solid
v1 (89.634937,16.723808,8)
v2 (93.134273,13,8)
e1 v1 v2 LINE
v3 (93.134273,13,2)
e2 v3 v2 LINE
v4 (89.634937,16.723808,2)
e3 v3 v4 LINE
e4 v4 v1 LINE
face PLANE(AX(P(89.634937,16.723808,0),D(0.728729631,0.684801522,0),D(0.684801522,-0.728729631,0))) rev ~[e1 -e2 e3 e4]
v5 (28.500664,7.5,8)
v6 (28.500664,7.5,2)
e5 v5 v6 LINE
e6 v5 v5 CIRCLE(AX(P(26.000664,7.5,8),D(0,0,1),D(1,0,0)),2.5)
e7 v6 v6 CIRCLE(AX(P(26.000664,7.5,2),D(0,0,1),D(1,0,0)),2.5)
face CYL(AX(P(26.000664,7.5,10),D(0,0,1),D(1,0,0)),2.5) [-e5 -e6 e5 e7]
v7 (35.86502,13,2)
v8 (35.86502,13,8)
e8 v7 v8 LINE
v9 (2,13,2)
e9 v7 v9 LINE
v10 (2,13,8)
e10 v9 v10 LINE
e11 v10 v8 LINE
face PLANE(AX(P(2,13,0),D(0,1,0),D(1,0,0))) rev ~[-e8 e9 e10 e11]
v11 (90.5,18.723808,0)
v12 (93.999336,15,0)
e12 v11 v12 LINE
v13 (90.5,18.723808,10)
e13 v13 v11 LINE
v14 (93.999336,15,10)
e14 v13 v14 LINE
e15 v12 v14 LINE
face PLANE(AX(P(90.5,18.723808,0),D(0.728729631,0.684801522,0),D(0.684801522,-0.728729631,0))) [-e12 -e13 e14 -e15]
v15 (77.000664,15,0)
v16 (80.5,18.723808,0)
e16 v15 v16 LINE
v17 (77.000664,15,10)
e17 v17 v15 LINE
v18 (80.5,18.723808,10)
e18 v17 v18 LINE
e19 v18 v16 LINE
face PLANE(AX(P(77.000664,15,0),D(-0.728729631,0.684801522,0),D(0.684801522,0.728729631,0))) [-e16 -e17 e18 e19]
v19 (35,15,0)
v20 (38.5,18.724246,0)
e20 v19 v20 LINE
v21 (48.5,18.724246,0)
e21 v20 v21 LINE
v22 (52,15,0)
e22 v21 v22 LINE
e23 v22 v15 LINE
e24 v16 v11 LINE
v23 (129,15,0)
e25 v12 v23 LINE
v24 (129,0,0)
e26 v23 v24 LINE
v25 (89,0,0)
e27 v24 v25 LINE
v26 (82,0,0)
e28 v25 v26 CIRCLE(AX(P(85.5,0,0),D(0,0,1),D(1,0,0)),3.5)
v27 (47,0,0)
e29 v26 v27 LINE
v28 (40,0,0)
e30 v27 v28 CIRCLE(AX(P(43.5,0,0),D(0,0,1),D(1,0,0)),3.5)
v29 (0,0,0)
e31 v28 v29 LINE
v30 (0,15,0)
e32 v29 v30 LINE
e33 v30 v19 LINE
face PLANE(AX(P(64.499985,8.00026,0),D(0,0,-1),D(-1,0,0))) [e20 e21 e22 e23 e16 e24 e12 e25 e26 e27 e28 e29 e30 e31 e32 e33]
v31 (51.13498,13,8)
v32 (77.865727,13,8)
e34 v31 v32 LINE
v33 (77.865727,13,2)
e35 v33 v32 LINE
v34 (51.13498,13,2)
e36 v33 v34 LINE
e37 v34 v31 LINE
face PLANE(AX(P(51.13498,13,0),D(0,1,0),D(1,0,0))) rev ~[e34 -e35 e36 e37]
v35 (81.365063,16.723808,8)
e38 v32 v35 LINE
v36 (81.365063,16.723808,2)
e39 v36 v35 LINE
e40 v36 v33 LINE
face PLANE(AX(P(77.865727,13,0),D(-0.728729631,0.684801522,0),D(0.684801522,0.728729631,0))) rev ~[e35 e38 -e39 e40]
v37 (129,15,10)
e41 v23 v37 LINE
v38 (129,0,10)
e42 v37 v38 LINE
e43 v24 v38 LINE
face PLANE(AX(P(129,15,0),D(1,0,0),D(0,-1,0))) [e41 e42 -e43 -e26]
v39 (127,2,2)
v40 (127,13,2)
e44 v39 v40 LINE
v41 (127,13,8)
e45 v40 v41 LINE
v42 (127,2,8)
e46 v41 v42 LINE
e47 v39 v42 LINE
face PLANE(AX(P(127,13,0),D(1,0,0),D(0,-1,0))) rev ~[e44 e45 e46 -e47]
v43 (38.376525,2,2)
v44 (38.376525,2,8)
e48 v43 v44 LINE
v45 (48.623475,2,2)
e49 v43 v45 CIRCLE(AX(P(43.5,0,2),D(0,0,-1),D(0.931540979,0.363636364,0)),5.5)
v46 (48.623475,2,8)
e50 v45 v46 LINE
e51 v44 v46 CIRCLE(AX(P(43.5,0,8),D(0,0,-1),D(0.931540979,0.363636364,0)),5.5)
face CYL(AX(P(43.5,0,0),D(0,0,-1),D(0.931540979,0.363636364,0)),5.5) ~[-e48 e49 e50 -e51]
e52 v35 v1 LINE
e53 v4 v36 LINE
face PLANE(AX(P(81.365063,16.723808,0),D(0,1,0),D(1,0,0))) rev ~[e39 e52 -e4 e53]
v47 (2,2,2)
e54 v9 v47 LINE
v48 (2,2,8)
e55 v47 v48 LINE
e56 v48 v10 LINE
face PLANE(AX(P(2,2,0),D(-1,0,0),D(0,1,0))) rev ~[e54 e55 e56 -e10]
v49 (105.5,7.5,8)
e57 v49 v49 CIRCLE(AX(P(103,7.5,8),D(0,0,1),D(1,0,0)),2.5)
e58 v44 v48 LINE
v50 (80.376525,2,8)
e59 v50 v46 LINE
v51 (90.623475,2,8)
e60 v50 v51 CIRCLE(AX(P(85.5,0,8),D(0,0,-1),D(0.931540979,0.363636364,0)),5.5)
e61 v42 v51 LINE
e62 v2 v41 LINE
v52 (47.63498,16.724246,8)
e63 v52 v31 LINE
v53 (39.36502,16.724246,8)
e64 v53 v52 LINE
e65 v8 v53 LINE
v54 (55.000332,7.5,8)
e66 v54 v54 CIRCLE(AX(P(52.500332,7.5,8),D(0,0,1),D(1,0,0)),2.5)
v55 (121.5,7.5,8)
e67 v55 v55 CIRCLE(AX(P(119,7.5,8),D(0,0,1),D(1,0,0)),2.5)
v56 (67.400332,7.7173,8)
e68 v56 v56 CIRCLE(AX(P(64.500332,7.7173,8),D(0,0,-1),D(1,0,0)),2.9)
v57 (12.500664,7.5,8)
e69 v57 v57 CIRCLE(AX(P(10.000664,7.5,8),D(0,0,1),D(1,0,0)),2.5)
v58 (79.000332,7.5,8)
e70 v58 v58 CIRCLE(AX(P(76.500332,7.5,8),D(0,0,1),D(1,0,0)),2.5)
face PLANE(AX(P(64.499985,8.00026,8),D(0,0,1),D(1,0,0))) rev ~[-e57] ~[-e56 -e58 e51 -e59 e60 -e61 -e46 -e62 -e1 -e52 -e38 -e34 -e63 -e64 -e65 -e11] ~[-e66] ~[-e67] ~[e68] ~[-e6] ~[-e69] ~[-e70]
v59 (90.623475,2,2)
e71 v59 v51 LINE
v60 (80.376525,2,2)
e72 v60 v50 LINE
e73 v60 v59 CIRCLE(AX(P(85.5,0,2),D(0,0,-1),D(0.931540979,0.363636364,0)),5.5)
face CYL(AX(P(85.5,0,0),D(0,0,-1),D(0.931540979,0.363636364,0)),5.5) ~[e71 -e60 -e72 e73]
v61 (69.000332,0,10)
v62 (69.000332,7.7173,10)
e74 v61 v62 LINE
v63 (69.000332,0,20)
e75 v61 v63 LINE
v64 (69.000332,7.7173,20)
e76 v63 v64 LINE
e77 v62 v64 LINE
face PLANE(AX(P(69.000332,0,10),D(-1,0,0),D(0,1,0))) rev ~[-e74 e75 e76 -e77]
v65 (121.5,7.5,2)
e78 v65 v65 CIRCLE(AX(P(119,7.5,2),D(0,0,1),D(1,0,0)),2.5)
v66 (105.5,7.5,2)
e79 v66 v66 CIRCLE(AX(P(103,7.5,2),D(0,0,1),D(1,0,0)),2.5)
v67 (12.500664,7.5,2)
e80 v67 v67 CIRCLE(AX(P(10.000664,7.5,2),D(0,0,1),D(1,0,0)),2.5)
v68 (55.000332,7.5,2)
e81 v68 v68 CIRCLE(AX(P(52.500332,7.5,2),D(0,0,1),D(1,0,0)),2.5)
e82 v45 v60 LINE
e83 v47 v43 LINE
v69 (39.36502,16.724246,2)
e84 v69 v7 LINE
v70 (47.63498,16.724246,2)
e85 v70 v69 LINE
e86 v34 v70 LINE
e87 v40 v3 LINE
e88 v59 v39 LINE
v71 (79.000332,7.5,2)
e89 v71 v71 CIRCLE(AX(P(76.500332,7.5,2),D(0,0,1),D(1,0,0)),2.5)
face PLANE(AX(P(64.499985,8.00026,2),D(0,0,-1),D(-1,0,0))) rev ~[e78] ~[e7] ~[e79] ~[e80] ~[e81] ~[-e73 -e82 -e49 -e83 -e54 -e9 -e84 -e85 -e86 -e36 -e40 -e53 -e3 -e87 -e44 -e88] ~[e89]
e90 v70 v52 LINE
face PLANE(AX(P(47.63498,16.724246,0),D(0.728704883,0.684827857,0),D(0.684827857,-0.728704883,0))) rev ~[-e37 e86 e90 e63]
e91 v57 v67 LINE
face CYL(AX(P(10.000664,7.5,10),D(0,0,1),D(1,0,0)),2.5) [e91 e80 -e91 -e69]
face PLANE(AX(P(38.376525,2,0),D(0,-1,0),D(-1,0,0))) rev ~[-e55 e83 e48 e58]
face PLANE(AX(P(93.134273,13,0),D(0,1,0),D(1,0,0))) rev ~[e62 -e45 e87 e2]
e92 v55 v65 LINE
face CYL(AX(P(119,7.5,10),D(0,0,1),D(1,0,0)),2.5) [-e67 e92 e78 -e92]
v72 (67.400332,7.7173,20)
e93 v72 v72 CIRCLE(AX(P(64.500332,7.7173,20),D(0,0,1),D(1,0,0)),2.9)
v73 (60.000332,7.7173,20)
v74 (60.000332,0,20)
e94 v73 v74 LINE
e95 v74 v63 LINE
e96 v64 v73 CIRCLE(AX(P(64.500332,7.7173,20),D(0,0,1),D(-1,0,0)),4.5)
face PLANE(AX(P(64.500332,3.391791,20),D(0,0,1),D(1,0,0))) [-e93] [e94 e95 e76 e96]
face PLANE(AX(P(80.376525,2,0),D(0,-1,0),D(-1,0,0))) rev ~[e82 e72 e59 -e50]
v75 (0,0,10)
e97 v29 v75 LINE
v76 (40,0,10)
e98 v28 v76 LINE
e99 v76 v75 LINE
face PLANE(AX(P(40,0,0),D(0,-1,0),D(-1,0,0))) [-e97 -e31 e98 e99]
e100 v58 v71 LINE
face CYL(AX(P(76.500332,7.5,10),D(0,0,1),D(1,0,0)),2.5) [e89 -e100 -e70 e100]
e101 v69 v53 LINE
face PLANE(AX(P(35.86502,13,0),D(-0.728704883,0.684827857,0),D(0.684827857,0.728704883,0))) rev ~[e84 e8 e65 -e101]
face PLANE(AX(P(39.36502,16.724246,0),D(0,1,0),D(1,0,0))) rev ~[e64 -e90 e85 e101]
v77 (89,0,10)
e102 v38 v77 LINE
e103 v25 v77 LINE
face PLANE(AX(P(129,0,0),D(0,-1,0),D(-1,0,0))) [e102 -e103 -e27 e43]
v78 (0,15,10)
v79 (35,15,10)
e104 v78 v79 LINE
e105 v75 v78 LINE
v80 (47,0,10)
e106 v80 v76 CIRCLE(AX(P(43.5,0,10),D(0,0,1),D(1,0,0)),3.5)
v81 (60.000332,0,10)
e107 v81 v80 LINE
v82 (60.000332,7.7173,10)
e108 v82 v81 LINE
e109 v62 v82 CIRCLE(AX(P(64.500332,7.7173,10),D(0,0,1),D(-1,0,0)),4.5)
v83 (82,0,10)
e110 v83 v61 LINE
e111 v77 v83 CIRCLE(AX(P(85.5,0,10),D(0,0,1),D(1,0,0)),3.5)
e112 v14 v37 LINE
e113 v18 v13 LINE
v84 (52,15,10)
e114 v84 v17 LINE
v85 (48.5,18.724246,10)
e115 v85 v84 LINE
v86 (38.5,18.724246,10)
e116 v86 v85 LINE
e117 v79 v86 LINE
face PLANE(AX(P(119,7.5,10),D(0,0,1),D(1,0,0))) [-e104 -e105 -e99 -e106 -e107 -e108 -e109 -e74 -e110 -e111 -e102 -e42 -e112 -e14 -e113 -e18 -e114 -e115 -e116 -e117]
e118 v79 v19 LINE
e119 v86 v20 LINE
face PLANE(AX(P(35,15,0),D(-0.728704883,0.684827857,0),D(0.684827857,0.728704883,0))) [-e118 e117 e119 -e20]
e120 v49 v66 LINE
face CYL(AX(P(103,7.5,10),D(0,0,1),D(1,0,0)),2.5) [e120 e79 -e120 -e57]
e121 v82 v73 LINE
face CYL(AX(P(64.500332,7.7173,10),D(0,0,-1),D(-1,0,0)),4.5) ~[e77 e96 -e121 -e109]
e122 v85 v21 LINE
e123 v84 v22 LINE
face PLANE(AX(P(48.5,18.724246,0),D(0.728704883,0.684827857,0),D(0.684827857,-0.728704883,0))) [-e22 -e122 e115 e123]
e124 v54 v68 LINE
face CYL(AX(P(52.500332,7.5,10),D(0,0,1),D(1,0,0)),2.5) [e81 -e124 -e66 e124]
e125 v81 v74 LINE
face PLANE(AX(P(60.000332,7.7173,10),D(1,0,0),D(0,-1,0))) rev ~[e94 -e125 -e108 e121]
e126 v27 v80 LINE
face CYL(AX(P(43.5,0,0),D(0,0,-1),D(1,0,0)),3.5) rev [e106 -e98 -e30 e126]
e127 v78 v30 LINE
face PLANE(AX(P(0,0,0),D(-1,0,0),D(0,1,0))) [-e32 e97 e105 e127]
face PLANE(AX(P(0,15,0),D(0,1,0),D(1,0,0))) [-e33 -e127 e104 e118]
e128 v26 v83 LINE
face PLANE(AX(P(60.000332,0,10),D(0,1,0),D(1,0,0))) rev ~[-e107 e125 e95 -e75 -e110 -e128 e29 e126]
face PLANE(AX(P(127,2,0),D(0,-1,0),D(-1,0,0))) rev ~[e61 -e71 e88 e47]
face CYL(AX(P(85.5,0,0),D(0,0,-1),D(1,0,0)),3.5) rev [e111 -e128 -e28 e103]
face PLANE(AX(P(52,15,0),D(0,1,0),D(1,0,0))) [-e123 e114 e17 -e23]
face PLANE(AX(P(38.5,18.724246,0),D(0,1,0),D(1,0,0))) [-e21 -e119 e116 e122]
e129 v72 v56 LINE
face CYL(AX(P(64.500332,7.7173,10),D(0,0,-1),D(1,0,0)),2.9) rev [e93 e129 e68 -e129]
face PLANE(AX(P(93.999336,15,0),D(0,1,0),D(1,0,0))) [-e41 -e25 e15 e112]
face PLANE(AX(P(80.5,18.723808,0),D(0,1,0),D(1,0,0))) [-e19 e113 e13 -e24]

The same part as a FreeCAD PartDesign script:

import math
import FreeCAD as App
import Part
import Sketcher

V = App.Vector
Q = App.Units.Quantity

doc = App.newDocument("Part")
params = doc.addObject("Spreadsheet::Sheet", "Params")
for row, (alias, value) in enumerate([
    ("sketch1_radius", "3.5 mm"),
    ("sketch1_radius2", "5.5 mm"),
    ("sketch1_width", "40 mm"),
    ("sketch1_width2", "35 mm"),
    ("sketch1_width3", "10 mm"),
    ("pad1_length", "10 mm"),
    ("sketch2_radius", "3.5 mm"),
    ("sketch2_width", "10 mm"),
    ("sketch2_width2", "35 mm"),
    ("sketch2_width3", "40 mm"),
    ("sketch2_height", "15 mm"),
    ("pad2_length", "2 mm"),
    ("sketch3_radius", "3.5 mm"),
    ("sketch3_width", "10 mm"),
    ("sketch3_width2", "40 mm"),
    ("sketch3_width3", "35 mm"),
    ("sketch3_height", "15 mm"),
    ("pad3_length", "2 mm"),
    ("sketch4_diameter", "9 mm"),
    ("sketch4_diameter2", "5.8 mm"),
    ("pad4_length", "10 mm"),
    ("sketch5_diameter", "5.8 mm"),
    ("pocket1_length", "8 mm"),
    ("sketch6_diameter", "5 mm"),
    ("pad5_length", "10 mm"),
    ("sketch7_radius", "4.5 mm"),
    ("pad6_length", "10 mm"),
], start=1):
    params.set(f"A{row}", alias)
    params.set(f"B{row}", "=" + value)
    params.setAlias(f"B{row}", alias)

body = doc.addObject("PartDesign::Body", "Body")

# Sketch on XY plane
sketch1 = body.newObject("Sketcher::SketchObject", "Sketch")
sketch1.AttachmentSupport = (doc.getObject("XY_Plane"), [""])
sketch1.MapMode = "FlatFace"
sketch1.addGeometry([
    Part.LineSegment(V(0, 15, 0), V(0, 0, 0)),  # 0
    Part.LineSegment(V(0, 0, 0), V(40, 0, 0)),  # 1
    Part.ArcOfCircle(Part.Circle(V(43.5, 0, 0), V(0, 0, 1), 3.5), math.radians(0), math.radians(180)),  # 2
    Part.LineSegment(V(47, 0, 0), V(82, 0, 0)),  # 3
    Part.ArcOfCircle(Part.Circle(V(85.5, 0, 0), V(0, 0, 1), 3.5), math.radians(0), math.radians(180)),  # 4
    Part.LineSegment(V(89, 0, 0), V(129, 0, 0)),  # 5
    Part.LineSegment(V(129, 0, 0), V(129, 15, 0)),  # 6
    Part.LineSegment(V(129, 15, 0), V(94, 15, 0)),  # 7
    Part.LineSegment(V(94, 15, 0), V(90.5, 18.7, 0)),  # 8
    Part.LineSegment(V(90.5, 18.7, 0), V(80.5, 18.7, 0)),  # 9
    Part.LineSegment(V(80.5, 18.7, 0), V(77, 15, 0)),  # 10
    Part.LineSegment(V(77, 15, 0), V(52, 15, 0)),  # 11
    Part.LineSegment(V(52, 15, 0), V(48.5, 18.7, 0)),  # 12
    Part.LineSegment(V(48.5, 18.7, 0), V(38.5, 18.7, 0)),  # 13
    Part.LineSegment(V(38.5, 18.7, 0), V(35, 15, 0)),  # 14
    Part.LineSegment(V(35, 15, 0), V(0, 15, 0)),  # 15
    Part.LineSegment(V(2, 13, 0), V(35.9, 13, 0)),  # 16
    Part.LineSegment(V(35.9, 13, 0), V(39.4, 16.7, 0)),  # 17
    Part.LineSegment(V(39.4, 16.7, 0), V(47.6, 16.7, 0)),  # 18
    Part.LineSegment(V(47.6, 16.7, 0), V(51.1, 13, 0)),  # 19
    Part.LineSegment(V(51.1, 13, 0), V(77.9, 13, 0)),  # 20
    Part.LineSegment(V(77.9, 13, 0), V(81.4, 16.7, 0)),  # 21
    Part.LineSegment(V(81.4, 16.7, 0), V(89.6, 16.7, 0)),  # 22
    Part.LineSegment(V(89.6, 16.7, 0), V(93.1, 13, 0)),  # 23
    Part.LineSegment(V(93.1, 13, 0), V(127, 13, 0)),  # 24
    Part.LineSegment(V(127, 13, 0), V(127, 2, 0)),  # 25
    Part.LineSegment(V(127, 2, 0), V(90.6, 2, 0)),  # 26
    Part.ArcOfCircle(Part.Circle(V(85.5, 0, 0), V(0, 0, 1), 5.5), math.radians(21), math.radians(159)),  # 27
    Part.LineSegment(V(80.4, 2, 0), V(48.6, 2, 0)),  # 28
    Part.ArcOfCircle(Part.Circle(V(43.5, 0, 0), V(0, 0, 1), 5.5), math.radians(21), math.radians(159)),  # 29
    Part.LineSegment(V(38.4, 2, 0), V(2, 2, 0)),  # 30
    Part.LineSegment(V(2, 2, 0), V(2, 13, 0)),  # 31
], False)
sketch1.addConstraint([
    Sketcher.Constraint("Coincident", 0, 2, 1, 1),
    Sketcher.Constraint("Coincident", 1, 2, 2, 2),
    Sketcher.Constraint("Coincident", 2, 1, 3, 1),
    Sketcher.Constraint("Coincident", 3, 2, 4, 2),
    Sketcher.Constraint("Coincident", 4, 1, 5, 1),
    Sketcher.Constraint("Coincident", 5, 2, 6, 1),
    Sketcher.Constraint("Coincident", 6, 2, 7, 1),
    Sketcher.Constraint("Coincident", 7, 2, 8, 1),
    Sketcher.Constraint("Coincident", 8, 2, 9, 1),
    Sketcher.Constraint("Coincident", 9, 2, 10, 1),
    Sketcher.Constraint("Coincident", 10, 2, 11, 1),
    Sketcher.Constraint("Coincident", 11, 2, 12, 1),
    Sketcher.Constraint("Coincident", 12, 2, 13, 1),
    Sketcher.Constraint("Coincident", 13, 2, 14, 1),
    Sketcher.Constraint("Coincident", 14, 2, 15, 1),
    Sketcher.Constraint("Coincident", 15, 2, 0, 1),
    Sketcher.Constraint("Coincident", 16, 2, 17, 1),
    Sketcher.Constraint("Coincident", 17, 2, 18, 1),
    Sketcher.Constraint("Coincident", 18, 2, 19, 1),
    Sketcher.Constraint("Coincident", 19, 2, 20, 1),
    Sketcher.Constraint("Coincident", 20, 2, 21, 1),
    Sketcher.Constraint("Coincident", 21, 2, 22, 1),
    Sketcher.Constraint("Coincident", 22, 2, 23, 1),
    Sketcher.Constraint("Coincident", 23, 2, 24, 1),
    Sketcher.Constraint("Coincident", 24, 2, 25, 1),
    Sketcher.Constraint("Coincident", 25, 2, 26, 1),
    Sketcher.Constraint("Coincident", 26, 2, 27, 1),
    Sketcher.Constraint("Coincident", 27, 2, 28, 1),
    Sketcher.Constraint("Coincident", 28, 2, 29, 1),
    Sketcher.Constraint("Coincident", 29, 2, 30, 1),
    Sketcher.Constraint("Coincident", 30, 2, 31, 1),
    Sketcher.Constraint("Coincident", 31, 2, 16, 1),
    Sketcher.Constraint("Vertical", 0),
    Sketcher.Constraint("Horizontal", 1),
    Sketcher.Constraint("Horizontal", 3),
    Sketcher.Constraint("Horizontal", 5),
    Sketcher.Constraint("Vertical", 6),
    Sketcher.Constraint("Horizontal", 7),
    Sketcher.Constraint("Horizontal", 9),
    Sketcher.Constraint("Horizontal", 11),
    Sketcher.Constraint("Horizontal", 13),
    Sketcher.Constraint("Horizontal", 15),
    Sketcher.Constraint("Horizontal", 16),
    Sketcher.Constraint("Horizontal", 18),
    Sketcher.Constraint("Horizontal", 20),
    Sketcher.Constraint("Horizontal", 22),
    Sketcher.Constraint("Horizontal", 24),
    Sketcher.Constraint("Vertical", 25),
    Sketcher.Constraint("Horizontal", 26),
    Sketcher.Constraint("Horizontal", 28),
    Sketcher.Constraint("Horizontal", 30),
    Sketcher.Constraint("Vertical", 31),
    Sketcher.Constraint("Coincident", 0, 2, -1, 1),
    Sketcher.Constraint("Coincident", 27, 3, 4, 3),
    Sketcher.Constraint("Coincident", 29, 3, 2, 3),
    Sketcher.Constraint("Equal", 2, 4),
    Sketcher.Constraint("Equal", 27, 29),
    Sketcher.Constraint("PointOnObject", 2, 3, -1),
    Sketcher.Constraint("PointOnObject", 4, 3, -1),
    Sketcher.Constraint("PointOnObject", 2, 1, -1),
    Sketcher.Constraint("PointOnObject", 4, 1, -1),
    Sketcher.Constraint("Parallel", 14, 17),
    Sketcher.Constraint("Parallel", 12, 19),
    Sketcher.Constraint("Parallel", 10, 21),
    Sketcher.Constraint("Parallel", 8, 23),
    Sketcher.Constraint("Horizontal", 7, 2, 10, 2),
    Sketcher.Constraint("Horizontal", 11, 2, 14, 2),
    Sketcher.Constraint("Horizontal", 16, 2, 19, 2),
    Sketcher.Constraint("Horizontal", 20, 2, 23, 2),
    Sketcher.Constraint("Horizontal", 26, 2, 27, 2),
    Sketcher.Constraint("Horizontal", 28, 2, 29, 2),
    Sketcher.Constraint("Equal", 1, 5),
    Sketcher.Constraint("Equal", 9, 13),
    Sketcher.Constraint("Equal", 3, 15),
    Sketcher.Constraint("Equal", 26, 30),
    Sketcher.Constraint("Equal", 8, 10),
    Sketcher.Constraint("Equal", 12, 14),
    Sketcher.Constraint("Equal", 14, 17),
    Sketcher.Constraint("Equal", 10, 21),
    Sketcher.Constraint("Radius", 2, 3.5),
    Sketcher.Constraint("Radius", 27, 5.5),
    Sketcher.Constraint("DistanceX", 1, 1, 1, 2, 40.0),
    Sketcher.Constraint("DistanceX", 3, 1, 3, 2, 35.0),
    Sketcher.Constraint("DistanceX", 9, 2, 9, 1, 10.0),
    Sketcher.Constraint("DistanceY", 0, 2, 0, 1, 15.0),
    Sketcher.Constraint("DistanceY", 25, 2, 25, 1, 11.0),
    Sketcher.Constraint("DistanceX", -1, 1, 11, 2, 52.0),
    Sketcher.Constraint("DistanceY", -1, 1, 16, 2, 13.0),
    Sketcher.Constraint("DistanceX", -1, 1, 24, 2, 127.0),
    Sketcher.Constraint("DistanceX", 4, 3, 8, 2, 5.0),
    Sketcher.Constraint("Angle", 8, Q("133.22 deg")),
    Sketcher.Constraint("Distance", 8, 5.11),
    Sketcher.Constraint("DistanceX", 16, 1, 16, 2, 33.86502),
    Sketcher.Constraint("DistanceX", 18, 1, 18, 2, 8.26996),
    Sketcher.Constraint("DistanceX", 10, 2, 21, 2, 4.364399),
    Sketcher.Constraint("DistanceX", 22, 2, 7, 2, 4.364399),
    Sketcher.Constraint("Distance", 12, 5.110773),
])
sketch1.setExpression("Constraints[79]", "Params.sketch1_radius")
sketch1.setExpression("Constraints[80]", "Params.sketch1_radius2")
sketch1.setExpression("Constraints[81]", "Params.sketch1_width")
sketch1.setExpression("Constraints[82]", "Params.sketch1_width2")
sketch1.setExpression("Constraints[83]", "Params.sketch1_width3")
pad1 = body.newObject("PartDesign::Pad", "Pad")
pad1.Profile = sketch1
pad1.setExpression("Length", "Params.pad1_length")

# Sketch on XY plane
sketch2 = body.newObject("Sketcher::SketchObject", "Sketch001")
sketch2.AttachmentSupport = (doc.getObject("XY_Plane"), [""])
sketch2.MapMode = "FlatFace"
sketch2.AttachmentOffset = App.Placement(V(0, 0, 8), App.Rotation())
sketch2.addGeometry([
    Part.LineSegment(V(129, 0, 0), V(129, 15, 0)),  # 0
    Part.LineSegment(V(129, 15, 0), V(94, 15, 0)),  # 1
    Part.LineSegment(V(94, 15, 0), V(90.5, 18.7, 0)),  # 2
    Part.LineSegment(V(90.5, 18.7, 0), V(80.5, 18.7, 0)),  # 3
    Part.LineSegment(V(80.5, 18.7, 0), V(77, 15, 0)),  # 4
    Part.LineSegment(V(77, 15, 0), V(52, 15, 0)),  # 5
    Part.LineSegment(V(52, 15, 0), V(48.5, 18.7, 0)),  # 6
    Part.LineSegment(V(48.5, 18.7, 0), V(38.5, 18.7, 0)),  # 7
    Part.LineSegment(V(38.5, 18.7, 0), V(35, 15, 0)),  # 8
    Part.LineSegment(V(35, 15, 0), V(0, 15, 0)),  # 9
    Part.LineSegment(V(0, 15, 0), V(0, 0, 0)),  # 10
    Part.LineSegment(V(0, 0, 0), V(40, 0, 0)),  # 11
    Part.ArcOfCircle(Part.Circle(V(43.5, 0, 0), V(0, 0, 1), 3.5), math.radians(0), math.radians(180)),  # 12
    Part.LineSegment(V(47, 0, 0), V(82, 0, 0)),  # 13
    Part.ArcOfCircle(Part.Circle(V(85.5, 0, 0), V(0, 0, 1), 3.5), math.radians(0), math.radians(180)),  # 14
    Part.LineSegment(V(89, 0, 0), V(129, 0, 0)),  # 15
], False)
sketch2.addConstraint([
    Sketcher.Constraint("Coincident", 0, 2, 1, 1),
    Sketcher.Constraint("Coincident", 1, 2, 2, 1),
    Sketcher.Constraint("Coincident", 2, 2, 3, 1),
    Sketcher.Constraint("Coincident", 3, 2, 4, 1),
    Sketcher.Constraint("Coincident", 4, 2, 5, 1),
    Sketcher.Constraint("Coincident", 5, 2, 6, 1),
    Sketcher.Constraint("Coincident", 6, 2, 7, 1),
    Sketcher.Constraint("Coincident", 7, 2, 8, 1),
    Sketcher.Constraint("Coincident", 8, 2, 9, 1),
    Sketcher.Constraint("Coincident", 9, 2, 10, 1),
    Sketcher.Constraint("Coincident", 10, 2, 11, 1),
    Sketcher.Constraint("Coincident", 11, 2, 12, 2),
    Sketcher.Constraint("Coincident", 12, 1, 13, 1),
    Sketcher.Constraint("Coincident", 13, 2, 14, 2),
    Sketcher.Constraint("Coincident", 14, 1, 15, 1),
    Sketcher.Constraint("Coincident", 15, 2, 0, 1),
    Sketcher.Constraint("Vertical", 0),
    Sketcher.Constraint("Horizontal", 1),
    Sketcher.Constraint("Horizontal", 3),
    Sketcher.Constraint("Horizontal", 5),
    Sketcher.Constraint("Horizontal", 7),
    Sketcher.Constraint("Horizontal", 9),
    Sketcher.Constraint("Vertical", 10),
    Sketcher.Constraint("Horizontal", 11),
    Sketcher.Constraint("Horizontal", 13),
    Sketcher.Constraint("Horizontal", 15),
    Sketcher.Constraint("Coincident", 10, 2, -1, 1),
    Sketcher.Constraint("Equal", 12, 14),
    Sketcher.Constraint("PointOnObject", 12, 3, -1),
    Sketcher.Constraint("PointOnObject", 14, 3, -1),
    Sketcher.Constraint("PointOnObject", 12, 1, -1),
    Sketcher.Constraint("PointOnObject", 14, 1, -1),
    Sketcher.Constraint("Horizontal", 1, 2, 4, 2),
    Sketcher.Constraint("Horizontal", 5, 2, 8, 2),
    Sketcher.Constraint("Equal", 3, 7),
    Sketcher.Constraint("Equal", 9, 13),
    Sketcher.Constraint("Equal", 11, 15),
    Sketcher.Constraint("Equal", 2, 4),
    Sketcher.Constraint("Equal", 6, 8),
    Sketcher.Constraint("Radius", 12, 3.5),
    Sketcher.Constraint("DistanceX", 3, 2, 3, 1, 10.0),
    Sketcher.Constraint("DistanceX", 9, 2, 9, 1, 35.0),
    Sketcher.Constraint("DistanceX", 11, 1, 11, 2, 40.0),
    Sketcher.Constraint("DistanceY", 0, 1, 0, 2, 15.0),
    Sketcher.Constraint("DistanceX", -1, 1, 5, 2, 52.0),
    Sketcher.Constraint("DistanceX", 14, 3, 2, 2, 5.0),
    Sketcher.Constraint("Angle", 2, Q("133.22 deg")),
    Sketcher.Constraint("Distance", 2, 5.11),
    Sketcher.Constraint("Distance", 6, 5.110773),
])
sketch2.setExpression("Constraints[39]", "Params.sketch2_radius")
sketch2.setExpression("Constraints[40]", "Params.sketch2_width")
sketch2.setExpression("Constraints[41]", "Params.sketch2_width2")
sketch2.setExpression("Constraints[42]", "Params.sketch2_width3")
sketch2.setExpression("Constraints[43]", "Params.sketch2_height")
pad2 = body.newObject("PartDesign::Pad", "Pad001")
pad2.Profile = sketch2
pad2.setExpression("Length", "Params.pad2_length")

# Sketch on XY plane
sketch3 = body.newObject("Sketcher::SketchObject", "Sketch002")
sketch3.AttachmentSupport = (doc.getObject("XY_Plane"), [""])
sketch3.MapMode = "FlatFace"
sketch3.addGeometry([
    Part.LineSegment(V(52, 15, 0), V(77, 15, 0)),  # 0
    Part.LineSegment(V(77, 15, 0), V(80.5, 18.7, 0)),  # 1
    Part.LineSegment(V(80.5, 18.7, 0), V(90.5, 18.7, 0)),  # 2
    Part.LineSegment(V(90.5, 18.7, 0), V(94, 15, 0)),  # 3
    Part.LineSegment(V(94, 15, 0), V(129, 15, 0)),  # 4
    Part.LineSegment(V(129, 15, 0), V(129, 0, 0)),  # 5
    Part.LineSegment(V(129, 0, 0), V(89, 0, 0)),  # 6
    Part.ArcOfCircle(Part.Circle(V(85.5, 0, 0), V(0, 0, 1), 3.5), math.radians(0), math.radians(180)),  # 7
    Part.LineSegment(V(82, 0, 0), V(47, 0, 0)),  # 8
    Part.ArcOfCircle(Part.Circle(V(43.5, 0, 0), V(0, 0, 1), 3.5), math.radians(0), math.radians(180)),  # 9
    Part.LineSegment(V(40, 0, 0), V(0, 0, 0)),  # 10
    Part.LineSegment(V(0, 0, 0), V(0, 15, 0)),  # 11
    Part.LineSegment(V(0, 15, 0), V(35, 15, 0)),  # 12
    Part.LineSegment(V(35, 15, 0), V(38.5, 18.7, 0)),  # 13
    Part.LineSegment(V(38.5, 18.7, 0), V(48.5, 18.7, 0)),  # 14
    Part.LineSegment(V(48.5, 18.7, 0), V(52, 15, 0)),  # 15
], False)
sketch3.addConstraint([
    Sketcher.Constraint("Coincident", 0, 2, 1, 1),
    Sketcher.Constraint("Coincident", 1, 2, 2, 1),
    Sketcher.Constraint("Coincident", 2, 2, 3, 1),
    Sketcher.Constraint("Coincident", 3, 2, 4, 1),
    Sketcher.Constraint("Coincident", 4, 2, 5, 1),
    Sketcher.Constraint("Coincident", 5, 2, 6, 1),
    Sketcher.Constraint("Coincident", 6, 2, 7, 1),
    Sketcher.Constraint("Coincident", 7, 2, 8, 1),
    Sketcher.Constraint("Coincident", 8, 2, 9, 1),
    Sketcher.Constraint("Coincident", 9, 2, 10, 1),
    Sketcher.Constraint("Coincident", 10, 2, 11, 1),
    Sketcher.Constraint("Coincident", 11, 2, 12, 1),
    Sketcher.Constraint("Coincident", 12, 2, 13, 1),
    Sketcher.Constraint("Coincident", 13, 2, 14, 1),
    Sketcher.Constraint("Coincident", 14, 2, 15, 1),
    Sketcher.Constraint("Coincident", 15, 2, 0, 1),
    Sketcher.Constraint("Horizontal", 0),
    Sketcher.Constraint("Horizontal", 2),
    Sketcher.Constraint("Horizontal", 4),
    Sketcher.Constraint("Vertical", 5),
    Sketcher.Constraint("Horizontal", 6),
    Sketcher.Constraint("Horizontal", 8),
    Sketcher.Constraint("Horizontal", 10),
    Sketcher.Constraint("Vertical", 11),
    Sketcher.Constraint("Horizontal", 12),
    Sketcher.Constraint("Horizontal", 14),
    Sketcher.Constraint("Coincident", 10, 2, -1, 1),
    Sketcher.Constraint("Equal", 7, 9),
    Sketcher.Constraint("PointOnObject", 7, 3, -1),
    Sketcher.Constraint("PointOnObject", 9, 3, -1),
    Sketcher.Constraint("PointOnObject", 5, 2, -1),
    Sketcher.Constraint("PointOnObject", 7, 2, -1),
    Sketcher.Constraint("Horizontal", 0, 2, 3, 2),
    Sketcher.Constraint("Horizontal", 4, 2, 11, 2),
    Sketcher.Constraint("Equal", 6, 10),
    Sketcher.Constraint("Equal", 8, 12),
    Sketcher.Constraint("Equal", 2, 14),
    Sketcher.Constraint("Equal", 1, 3),
    Sketcher.Constraint("Equal", 13, 15),
    Sketcher.Constraint("Radius", 7, 3.5),
    Sketcher.Constraint("DistanceX", 2, 1, 2, 2, 10.0),
    Sketcher.Constraint("DistanceX", 6, 2, 6, 1, 40.0),
    Sketcher.Constraint("DistanceX", 8, 2, 8, 1, 35.0),
    Sketcher.Constraint("DistanceY", 5, 2, 5, 1, 15.0),
    Sketcher.Constraint("DistanceX", -1, 1, 15, 2, 52.0),
    Sketcher.Constraint("DistanceX", 1, 2, 7, 3, 5.0),
    Sketcher.Constraint("Angle", 1, Q("46.78 deg")),
    Sketcher.Constraint("Distance", 1, 5.11),
    Sketcher.Constraint("Distance", 13, 5.110773),
])
sketch3.setExpression("Constraints[39]", "Params.sketch3_radius")
sketch3.setExpression("Constraints[40]", "Params.sketch3_width")
sketch3.setExpression("Constraints[41]", "Params.sketch3_width2")
sketch3.setExpression("Constraints[42]", "Params.sketch3_width3")
sketch3.setExpression("Constraints[43]", "Params.sketch3_height")
pad3 = body.newObject("PartDesign::Pad", "Pad002")
pad3.Profile = sketch3
pad3.setExpression("Length", "Params.pad3_length")

# Sketch on XY plane
sketch4 = body.newObject("Sketcher::SketchObject", "Sketch003")
sketch4.AttachmentSupport = (doc.getObject("XY_Plane"), [""])
sketch4.MapMode = "FlatFace"
sketch4.AttachmentOffset = App.Placement(V(0, 0, 10), App.Rotation())
sketch4.addGeometry([
    Part.Circle(V(64.5, 7.7, 0), V(0, 0, 1), 4.5),
    Part.Circle(V(64.5, 7.7, 0), V(0, 0, 1), 2.9),
], False)
sketch4.addConstraint([
    Sketcher.Constraint("Coincident", 1, 3, 0, 3),
    Sketcher.Constraint("Diameter", 0, 9.0),
    Sketcher.Constraint("Diameter", 1, 5.8),
    Sketcher.Constraint("DistanceY", -1, 1, 0, 3, 7.7173),
    Sketcher.Constraint("DistanceX", -1, 1, 0, 3, 64.500332),
])
sketch4.setExpression("Constraints[1]", "Params.sketch4_diameter")
sketch4.setExpression("Constraints[2]", "Params.sketch4_diameter2")
pad4 = body.newObject("PartDesign::Pad", "Pad003")
pad4.Profile = sketch4
pad4.setExpression("Length", "Params.pad4_length")

# Sketch on XY plane
sketch5 = body.newObject("Sketcher::SketchObject", "Sketch004")
sketch5.AttachmentSupport = (doc.getObject("XY_Plane"), [""])
sketch5.MapMode = "FlatFace"
sketch5.AttachmentOffset = App.Placement(V(0, 0, 2), App.Rotation())
sketch5.addGeometry(Part.Circle(V(64.5, 7.7, 0), V(0, 0, 1), 2.9), False)
sketch5.addConstraint([
    Sketcher.Constraint("Diameter", 0, 5.8),
    Sketcher.Constraint("DistanceY", -1, 1, 0, 3, 7.7173),
    Sketcher.Constraint("DistanceX", -1, 1, 0, 3, 64.500332),
])
sketch5.setExpression("Constraints[0]", "Params.sketch5_diameter")
pocket1 = body.newObject("PartDesign::Pocket", "Pocket")
pocket1.Profile = sketch5
pocket1.setExpression("Length", "Params.pocket1_length")
pocket1.Reversed = True

# Sketch on XY plane
sketch6 = body.newObject("Sketcher::SketchObject", "Sketch005")
sketch6.AttachmentSupport = (doc.getObject("XY_Plane"), [""])
sketch6.MapMode = "FlatFace"
sketch6.AttachmentOffset = App.Placement(V(0, 0, 10), App.Rotation())
sketch6.addGeometry([
    Part.Circle(V(119, 7.5, 0), V(0, 0, 1), 2.5),  # 0
    Part.Circle(V(103, 7.5, 0), V(0, 0, 1), 2.5),  # 1
    Part.Circle(V(76.5, 7.5, 0), V(0, 0, 1), 2.5),  # 2
    Part.Circle(V(10, 7.5, 0), V(0, 0, 1), 2.5),  # 3
    Part.Circle(V(26, 7.5, 0), V(0, 0, 1), 2.5),  # 4
    Part.Circle(V(52.5, 7.5, 0), V(0, 0, 1), 2.5),  # 5
], False)
sketch6.addConstraint([
    Sketcher.Constraint("Equal", 0, 1),
    Sketcher.Constraint("Equal", 1, 2),
    Sketcher.Constraint("Equal", 2, 3),
    Sketcher.Constraint("Equal", 3, 4),
    Sketcher.Constraint("Equal", 4, 5),
    Sketcher.Constraint("Horizontal", 0, 3, 1, 3),
    Sketcher.Constraint("Horizontal", 1, 3, 2, 3),
    Sketcher.Constraint("Horizontal", 2, 3, 3, 3),
    Sketcher.Constraint("Horizontal", 3, 3, 4, 3),
    Sketcher.Constraint("Horizontal", 4, 3, 5, 3),
    Sketcher.Constraint("Diameter", 0, 5.0),
    Sketcher.Constraint("DistanceX", -1, 1, 0, 3, 119.0),
    Sketcher.Constraint("DistanceX", -1, 1, 1, 3, 103.0),
    Sketcher.Constraint("DistanceX", 3, 3, 4, 3, 16.0),
    Sketcher.Constraint("DistanceX", 5, 3, 2, 3, 24.0),
    Sketcher.Constraint("DistanceY", -1, 1, 0, 3, 7.5),
    Sketcher.Constraint("DistanceX", -1, 1, 2, 3, 76.500332),
    Sketcher.Constraint("DistanceX", -1, 1, 3, 3, 10.000664),
])
sketch6.setExpression("Constraints[10]", "Params.sketch6_diameter")
pad5 = body.newObject("PartDesign::Pad", "Pad004")
pad5.Profile = sketch6
pad5.setExpression("Length", "Params.pad5_length")
pad5.Reversed = True

# Sketch on XY plane
sketch7 = body.newObject("Sketcher::SketchObject", "Sketch006")
sketch7.AttachmentSupport = (doc.getObject("XY_Plane"), [""])
sketch7.MapMode = "FlatFace"
sketch7.AttachmentOffset = App.Placement(V(0, 0, 10), App.Rotation())
sketch7.addGeometry([
    Part.LineSegment(V(60, 7.7, 0), V(60, 0, 0)),
    Part.LineSegment(V(60, 0, 0), V(69, 0, 0)),
    Part.LineSegment(V(69, 0, 0), V(69, 7.7, 0)),
    Part.ArcOfCircle(Part.Circle(V(64.5, 7.7, 0), V(0, 0, 1), 4.5), math.radians(180), math.radians(360)),
], False)
sketch7.addConstraint([
    Sketcher.Constraint("Coincident", 0, 2, 1, 1),
    Sketcher.Constraint("Coincident", 1, 2, 2, 1),
    Sketcher.Constraint("Tangent", 2, 2, 3, 2),
    Sketcher.Constraint("Tangent", 3, 1, 0, 1),
    Sketcher.Constraint("Vertical", 0),
    Sketcher.Constraint("Horizontal", 1),
    Sketcher.Constraint("Vertical", 2),
    Sketcher.Constraint("PointOnObject", 0, 2, -1),
    Sketcher.Constraint("Radius", 3, 4.5),
    Sketcher.Constraint("DistanceY", 0, 2, 0, 1, 7.7173),
    Sketcher.Constraint("DistanceX", -1, 1, 3, 3, 64.500332),
])
sketch7.setExpression("Constraints[8]", "Params.sketch7_radius")
pad6 = body.newObject("PartDesign::Pad", "Pad005")
pad6.Profile = sketch7
pad6.setExpression("Length", "Params.pad6_length")

doc.recompute()
